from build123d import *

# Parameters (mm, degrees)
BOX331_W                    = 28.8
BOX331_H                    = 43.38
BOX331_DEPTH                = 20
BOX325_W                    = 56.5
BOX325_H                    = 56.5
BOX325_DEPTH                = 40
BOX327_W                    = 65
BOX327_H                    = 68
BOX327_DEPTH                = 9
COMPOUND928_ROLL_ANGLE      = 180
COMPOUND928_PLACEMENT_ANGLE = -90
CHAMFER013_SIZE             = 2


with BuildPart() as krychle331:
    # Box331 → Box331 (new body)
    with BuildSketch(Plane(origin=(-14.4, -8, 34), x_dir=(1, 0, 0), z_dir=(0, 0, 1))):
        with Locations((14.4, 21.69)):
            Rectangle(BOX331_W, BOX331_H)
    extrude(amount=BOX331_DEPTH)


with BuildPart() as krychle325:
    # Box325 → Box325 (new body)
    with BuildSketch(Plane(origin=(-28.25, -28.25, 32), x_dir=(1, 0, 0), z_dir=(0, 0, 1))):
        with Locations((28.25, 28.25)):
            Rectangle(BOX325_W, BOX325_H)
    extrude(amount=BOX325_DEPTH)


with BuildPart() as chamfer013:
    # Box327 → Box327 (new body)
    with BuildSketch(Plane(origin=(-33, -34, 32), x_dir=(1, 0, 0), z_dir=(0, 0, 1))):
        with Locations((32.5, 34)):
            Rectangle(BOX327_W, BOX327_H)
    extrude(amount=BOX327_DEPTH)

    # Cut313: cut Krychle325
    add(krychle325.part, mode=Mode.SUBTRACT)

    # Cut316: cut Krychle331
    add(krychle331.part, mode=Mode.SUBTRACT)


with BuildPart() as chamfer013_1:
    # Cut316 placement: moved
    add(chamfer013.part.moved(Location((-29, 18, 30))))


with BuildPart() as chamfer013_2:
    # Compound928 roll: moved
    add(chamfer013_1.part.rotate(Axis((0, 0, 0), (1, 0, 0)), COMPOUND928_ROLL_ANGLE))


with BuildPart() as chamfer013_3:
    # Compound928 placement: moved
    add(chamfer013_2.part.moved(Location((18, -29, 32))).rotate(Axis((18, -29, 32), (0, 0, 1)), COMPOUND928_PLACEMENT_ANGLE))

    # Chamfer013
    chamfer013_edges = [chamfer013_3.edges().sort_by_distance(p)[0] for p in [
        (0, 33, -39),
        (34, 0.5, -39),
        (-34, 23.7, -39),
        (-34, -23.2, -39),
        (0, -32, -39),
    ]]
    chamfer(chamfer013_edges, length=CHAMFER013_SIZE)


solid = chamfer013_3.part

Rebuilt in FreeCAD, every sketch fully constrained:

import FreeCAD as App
import Part
import Sketcher

V = App.Vector
Q = App.Units.Quantity


def edges_at(feature, points):
    """Names of the edges that pass closest to the given points."""
    edges = feature.Shape.Edges
    near = lambda p: min(range(len(edges)), key=lambda i: edges[i].distToShape(Part.Vertex(*p))[0])
    return sorted({f"Edge{near(p) + 1}" for p in points})


def add_polygon(sketch, points):
    """Adds a closed chain of lines whose ends are joined by coincident constraints."""
    first, n = sketch.GeometryCount, len(points)
    for a, b in zip(points, points[1:] + points[:1]):
        sketch.addGeometry(Part.LineSegment(App.Vector(*a, 0), App.Vector(*b, 0)), False)
    for i in range(n):
        sketch.addConstraint(Sketcher.Constraint("Coincident", first + i, 2, first + (i + 1) % n, 1))

doc = App.newDocument("Part")
body = doc.addObject("PartDesign::Body", "Body")

# Sketch on XY plane
sketch1 = body.newObject("Sketcher::SketchObject", "Sketch")
sketch1.AttachmentSupport = (doc.getObject("XY_Plane"), [""])
sketch1.MapMode = "FlatFace"
sketch1.AttachmentOffset = App.Placement(V(0, 0, 34), App.Rotation())
add_polygon(sketch1, [(-14.4, 35.38), (-14.4, -8), (14.4, -8), (14.4, 35.38)])  # lines 0-3
sketch1.addConstraint([
    Sketcher.Constraint("Vertical", 0),
    Sketcher.Constraint("Horizontal", 1),
    Sketcher.Constraint("Vertical", 2),
    Sketcher.Constraint("Horizontal", 3),
    Sketcher.Constraint("DistanceX", 1, 1, 1, 2, Q("28.8 mm")),
    Sketcher.Constraint("DistanceY", 0, 2, -1, 1, Q("8 mm")),
    Sketcher.Constraint("DistanceY", 0, 2, 0, 1, Q("43.38 mm")),
    Sketcher.Constraint("DistanceX", 0, 2, -1, 1, Q("14.4 mm")),
])
pad1 = body.newObject("PartDesign::Pad", "Pad")
pad1.Profile = sketch1
pad1.Length = 20
body2 = doc.addObject("PartDesign::Body", "Body001")

# Sketch on XY plane
sketch2 = body2.newObject("Sketcher::SketchObject", "Sketch001")
sketch2.AttachmentSupport = (doc.getObject("XY_Plane001"), [""])
sketch2.MapMode = "FlatFace"
sketch2.AttachmentOffset = App.Placement(V(0, 0, 32), App.Rotation())
add_polygon(sketch2, [(-28.25, 28.25), (-28.25, -28.25), (28.25, -28.25), (28.25, 28.25)])  # lines 0-3
sketch2.addConstraint([
    Sketcher.Constraint("Vertical", 0),
    Sketcher.Constraint("Horizontal", 1),
    Sketcher.Constraint("Vertical", 2),
    Sketcher.Constraint("Horizontal", 3),
    Sketcher.Constraint("Symmetric", 0, 2, 2, 2, -1, 1),
    Sketcher.Constraint("Equal", 3, 0),
    Sketcher.Constraint("DistanceX", 1, 1, 1, 2, Q("56.5 mm")),
])
pad2 = body2.newObject("PartDesign::Pad", "Pad001")
pad2.Profile = sketch2
pad2.Length = 40
body3 = doc.addObject("PartDesign::Body", "Body002")

# Sketch on XY plane
sketch3 = body3.newObject("Sketcher::SketchObject", "Sketch002")
sketch3.AttachmentSupport = (doc.getObject("XY_Plane002"), [""])
sketch3.MapMode = "FlatFace"
sketch3.AttachmentOffset = App.Placement(V(0, 0, 32), App.Rotation())
add_polygon(sketch3, [(-33, 34), (-33, -34), (32, -34), (32, 34)])  # lines 0-3
sketch3.addConstraint([
    Sketcher.Constraint("Vertical", 0),
    Sketcher.Constraint("Horizontal", 1),
    Sketcher.Constraint("Vertical", 2),
    Sketcher.Constraint("Horizontal", 3),
    Sketcher.Constraint("DistanceX", 1, 1, 1, 2, Q("65 mm")),
    Sketcher.Constraint("DistanceY", 0, 2, 0, 1, Q("68 mm")),
    Sketcher.Constraint("DistanceX", 0, 2, -1, 1, Q("33 mm")),
    Sketcher.Constraint("DistanceY", 0, 2, -1, 1, Q("34 mm")),
])
pad3 = body3.newObject("PartDesign::Pad", "Pad002")
pad3.Profile = sketch3
pad3.Length = 9
doc.recompute()

boolean = body3.newObject("PartDesign::Boolean", "Boolean")
boolean.Type = "Cut"
boolean.addObjects([body2])
doc.recompute()

boolean2 = body3.newObject("PartDesign::Boolean", "Boolean001")
boolean2.Type = "Cut"
boolean2.addObjects([body])
body4 = doc.addObject("PartDesign::Body", "Body003")
doc.recompute()

body3.Placement = App.Placement(V(-29, 18, 30), App.Rotation(V(0, 0, 1), 0))
boolean3 = body4.newObject("PartDesign::Boolean", "Boolean002")
boolean3.Type = "Fuse"
boolean3.addObjects([body3])
body5 = doc.addObject("PartDesign::Body", "Body004")
doc.recompute()

body4.Placement = App.Placement(V(0, 0, 0), App.Rotation(V(1, 0, 0), 180))
boolean4 = body5.newObject("PartDesign::Boolean", "Boolean003")
boolean4.Type = "Fuse"
boolean4.addObjects([body4])
body6 = doc.addObject("PartDesign::Body", "Body005")
doc.recompute()

body5.Placement = App.Placement(V(18, -29, 32), App.Rotation(V(0, 0, 1), 270))
boolean5 = body6.newObject("PartDesign::Boolean", "Boolean004")
boolean5.Type = "Fuse"
boolean5.addObjects([body5])
doc.recompute()

chamfer = body6.newObject("PartDesign::Chamfer", "Chamfer")
chamfer.Base = (boolean5, edges_at(boolean5, [
    (0, 33, -39),
    (34, 0.5, -39),
    (-34, 23.7, -39),
    (-34, -23.2, -39),
    (0, -32, -39),
]))
chamfer.Size = 2

doc.recompute()
